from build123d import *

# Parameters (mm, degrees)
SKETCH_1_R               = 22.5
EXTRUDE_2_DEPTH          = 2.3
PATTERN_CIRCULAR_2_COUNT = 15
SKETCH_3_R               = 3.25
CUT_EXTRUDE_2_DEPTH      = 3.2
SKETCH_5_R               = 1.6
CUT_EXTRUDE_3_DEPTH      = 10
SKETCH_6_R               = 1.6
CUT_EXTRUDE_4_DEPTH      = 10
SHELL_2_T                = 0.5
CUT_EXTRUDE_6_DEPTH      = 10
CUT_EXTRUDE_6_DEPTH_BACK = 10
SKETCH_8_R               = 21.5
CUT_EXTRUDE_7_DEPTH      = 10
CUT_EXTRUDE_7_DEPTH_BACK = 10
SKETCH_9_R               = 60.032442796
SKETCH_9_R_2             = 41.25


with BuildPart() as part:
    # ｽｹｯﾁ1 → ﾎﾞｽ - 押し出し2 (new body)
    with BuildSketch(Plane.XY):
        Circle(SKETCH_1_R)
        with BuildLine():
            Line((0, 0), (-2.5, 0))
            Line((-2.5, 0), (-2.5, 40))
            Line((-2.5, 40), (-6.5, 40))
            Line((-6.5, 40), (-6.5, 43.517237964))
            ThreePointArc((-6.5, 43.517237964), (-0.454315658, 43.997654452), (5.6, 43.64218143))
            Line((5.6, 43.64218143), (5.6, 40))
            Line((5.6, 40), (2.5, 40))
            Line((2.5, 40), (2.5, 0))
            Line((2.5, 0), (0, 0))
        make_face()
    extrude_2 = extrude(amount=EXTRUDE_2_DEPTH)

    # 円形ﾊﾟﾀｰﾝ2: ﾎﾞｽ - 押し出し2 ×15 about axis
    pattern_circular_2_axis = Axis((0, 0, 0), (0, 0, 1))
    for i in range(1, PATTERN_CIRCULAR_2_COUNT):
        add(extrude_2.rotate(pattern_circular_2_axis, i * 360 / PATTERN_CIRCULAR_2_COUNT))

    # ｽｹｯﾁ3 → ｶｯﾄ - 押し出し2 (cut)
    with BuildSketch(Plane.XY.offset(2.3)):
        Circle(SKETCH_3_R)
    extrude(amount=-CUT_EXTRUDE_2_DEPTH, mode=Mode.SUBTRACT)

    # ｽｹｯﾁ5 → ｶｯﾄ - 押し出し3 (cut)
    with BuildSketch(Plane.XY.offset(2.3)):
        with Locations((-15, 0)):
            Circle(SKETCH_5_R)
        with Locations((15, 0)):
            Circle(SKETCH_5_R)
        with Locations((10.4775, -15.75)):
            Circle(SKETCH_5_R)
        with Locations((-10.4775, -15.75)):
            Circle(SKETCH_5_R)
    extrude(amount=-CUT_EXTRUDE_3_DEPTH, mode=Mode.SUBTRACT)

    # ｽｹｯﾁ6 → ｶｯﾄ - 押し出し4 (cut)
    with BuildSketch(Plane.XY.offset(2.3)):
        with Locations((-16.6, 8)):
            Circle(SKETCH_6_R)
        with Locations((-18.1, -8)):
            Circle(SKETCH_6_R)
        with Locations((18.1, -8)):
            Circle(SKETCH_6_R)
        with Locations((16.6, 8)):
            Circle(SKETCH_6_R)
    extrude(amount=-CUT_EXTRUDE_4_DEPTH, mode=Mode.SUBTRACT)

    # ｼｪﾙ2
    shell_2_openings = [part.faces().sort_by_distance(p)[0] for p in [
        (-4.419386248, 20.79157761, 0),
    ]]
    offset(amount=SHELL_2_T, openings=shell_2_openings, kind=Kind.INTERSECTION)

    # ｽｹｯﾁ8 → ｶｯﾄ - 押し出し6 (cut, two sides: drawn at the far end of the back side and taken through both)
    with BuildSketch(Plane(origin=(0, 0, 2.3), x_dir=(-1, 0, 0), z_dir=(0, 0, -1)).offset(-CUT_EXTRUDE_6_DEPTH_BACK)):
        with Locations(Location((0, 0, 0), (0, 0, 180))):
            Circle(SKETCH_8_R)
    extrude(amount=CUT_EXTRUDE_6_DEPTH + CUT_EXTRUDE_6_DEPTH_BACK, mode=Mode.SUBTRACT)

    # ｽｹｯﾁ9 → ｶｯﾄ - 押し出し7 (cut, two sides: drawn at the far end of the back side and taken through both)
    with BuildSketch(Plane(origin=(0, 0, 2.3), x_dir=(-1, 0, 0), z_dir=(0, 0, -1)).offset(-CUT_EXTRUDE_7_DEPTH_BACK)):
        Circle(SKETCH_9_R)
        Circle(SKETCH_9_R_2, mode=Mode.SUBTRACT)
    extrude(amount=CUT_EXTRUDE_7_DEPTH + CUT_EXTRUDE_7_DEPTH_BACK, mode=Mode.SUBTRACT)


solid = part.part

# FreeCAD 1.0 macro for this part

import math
import FreeCAD as App
import Part
import Sketcher
Q = App.Units.Quantity


def faces_at(feature, points):
    """Names of the faces that lie closest to the given points."""
    faces = feature.Shape.Faces
    near = lambda p: min(range(len(faces)), key=lambda i: faces[i].distToShape(Part.Vertex(*p))[0])
    return sorted({f"Face{near(p) + 1}" for p in points})

doc = App.newDocument("Part")
body = doc.addObject("PartDesign::Body", "Body")

# Sketch on XY plane
sketch1 = doc.addObject("Sketcher::SketchObject", "Sketch")
body.addObject(sketch1)
sketch1.AttachmentSupport = (doc.XY_Plane, [""])
sketch1.MapMode = "FlatFace"
sketch1.addGeometry([
    Part.ArcOfCircle(Part.Circle(App.Vector(0, 0, 0), App.Vector(0, 0, 1), 22.5), math.radians(96), math.radians(444)),  # 0
    Part.LineSegment(App.Vector(2.5, 22.4, 0), App.Vector(2.5, 40, 0)),  # 1
    Part.LineSegment(App.Vector(2.5, 40, 0), App.Vector(5.6, 40, 0)),  # 2
    Part.LineSegment(App.Vector(5.6, 40, 0), App.Vector(5.6, 43.6, 0)),  # 3
    Part.ArcOfCircle(Part.Circle(App.Vector(0, 0, 0), App.Vector(0, 0, 1), 44), math.radians(82.69), math.radians(98.5)),  # 4
    Part.LineSegment(App.Vector(-6.5, 43.5, 0), App.Vector(-6.5, 40, 0)),  # 5
    Part.LineSegment(App.Vector(-6.5, 40, 0), App.Vector(-2.5, 40, 0)),  # 6
    Part.LineSegment(App.Vector(-2.5, 40, 0), App.Vector(-2.5, 22.4, 0)),  # 7
], False)
sketch1.addConstraint([
    Sketcher.Constraint("Coincident", 0, 2, 1, 1),
    Sketcher.Constraint("Coincident", 1, 2, 2, 1),
    Sketcher.Constraint("Coincident", 2, 2, 3, 1),
    Sketcher.Constraint("Coincident", 3, 2, 4, 1),
    Sketcher.Constraint("Coincident", 4, 2, 5, 1),
    Sketcher.Constraint("Coincident", 5, 2, 6, 1),
    Sketcher.Constraint("Coincident", 6, 2, 7, 1),
    Sketcher.Constraint("Coincident", 7, 2, 0, 1),
    Sketcher.Constraint("Vertical", 1),
    Sketcher.Constraint("Horizontal", 2),
    Sketcher.Constraint("Vertical", 3),
    Sketcher.Constraint("Vertical", 5),
    Sketcher.Constraint("Horizontal", 6),
    Sketcher.Constraint("Vertical", 7),
    Sketcher.Constraint("Coincident", 0, 3, -1, 1),
    Sketcher.Constraint("Coincident", 4, 3, -1, 1),
    Sketcher.Constraint("Symmetric", 1, 2, 6, 2, -2),
    Sketcher.Constraint("Radius", 4, Q("44 mm")),
    Sketcher.Constraint("Radius", 0, Q("22.5 mm")),
    Sketcher.Constraint("DistanceX", 6, 1, 6, 2, Q("4 mm")),
    Sketcher.Constraint("DistanceX", 2, 1, 2, 2, Q("3.1 mm")),
    Sketcher.Constraint("DistanceY", -1, 1, 1, 2, Q("40 mm")),
    Sketcher.Constraint("DistanceX", 4, 2, 1, 2, Q("9 mm")),
])
pad1 = doc.addObject("PartDesign::Pad", "Pad")
body.addObject(pad1)
pad1.Profile = sketch1
pad1.Length = 2.3
doc.recompute()

polarpattern = doc.addObject("PartDesign::PolarPattern", "PolarPattern")
body.addObject(polarpattern)
polarpattern.Originals = [pad1]
polarpattern.Axis = (doc.Z_Axis, [""])
polarpattern.Angle = 360
polarpattern.Occurrences = 15
body.Tip = polarpattern

# Sketch on XY plane
sketch2 = doc.addObject("Sketcher::SketchObject", "Sketch001")
body.addObject(sketch2)
sketch2.AttachmentSupport = (doc.XY_Plane, [""])
sketch2.MapMode = "FlatFace"
sketch2.AttachmentOffset = App.Placement(App.Vector(0, 0, 2.3), App.Rotation())
sketch2.addGeometry(Part.Circle(App.Vector(0, 0, 0), App.Vector(0, 0, 1), 3.2), False)
sketch2.addConstraint([
    Sketcher.Constraint("Coincident", 0, 3, -1, 1),
    Sketcher.Constraint("Diameter", 0, Q("6.5 mm")),
])
pocket1 = doc.addObject("PartDesign::Pocket", "Pocket")
body.addObject(pocket1)
pocket1.Profile = sketch2
pocket1.Length = 3.2

# Sketch on XY plane
sketch3 = doc.addObject("Sketcher::SketchObject", "Sketch002")
body.addObject(sketch3)
sketch3.AttachmentSupport = (doc.XY_Plane, [""])
sketch3.MapMode = "FlatFace"
sketch3.AttachmentOffset = App.Placement(App.Vector(0, 0, 2.3), App.Rotation())
sketch3.addGeometry([
    Part.Circle(App.Vector(-15, 0, 0), App.Vector(0, 0, 1), 1.6),
    Part.Circle(App.Vector(15, 0, 0), App.Vector(0, 0, 1), 1.6),
    Part.Circle(App.Vector(10.5, -15.8, 0), App.Vector(0, 0, 1), 1.6),
    Part.Circle(App.Vector(-10.5, -15.8, 0), App.Vector(0, 0, 1), 1.6),
], False)
sketch3.addConstraint([
    Sketcher.Constraint("Equal", 0, 1),
    Sketcher.Constraint("Equal", 1, 2),
    Sketcher.Constraint("Equal", 2, 3),
    Sketcher.Constraint("Symmetric", 0, 3, 1, 3, -1, 1),
    Sketcher.Constraint("Symmetric", 2, 3, 3, 3, -2),
    Sketcher.Constraint("PointOnObject", 0, 3, -1),
    Sketcher.Constraint("Diameter", 0, Q("3.2 mm")),
    Sketcher.Constraint("DistanceX", 0, 3, -1, 1, Q("15 mm")),
    Sketcher.Constraint("DistanceY", 2, 3, -1, 1, Q("15.75 mm")),
    Sketcher.Constraint("DistanceX", 3, 3, 2, 3, Q("20.955 mm")),
])
pocket2 = doc.addObject("PartDesign::Pocket", "Pocket001")
body.addObject(pocket2)
pocket2.Profile = sketch3
pocket2.Length = 10

# Sketch on XY plane
sketch4 = doc.addObject("Sketcher::SketchObject", "Sketch003")
body.addObject(sketch4)
sketch4.AttachmentSupport = (doc.XY_Plane, [""])
sketch4.MapMode = "FlatFace"
sketch4.AttachmentOffset = App.Placement(App.Vector(0, 0, 2.3), App.Rotation())
sketch4.addGeometry([
    Part.Circle(App.Vector(-16.6, 8, 0), App.Vector(0, 0, 1), 1.6),
    Part.Circle(App.Vector(-18.1, -8, 0), App.Vector(0, 0, 1), 1.6),
    Part.Circle(App.Vector(18.1, -8, 0), App.Vector(0, 0, 1), 1.6),
    Part.Circle(App.Vector(16.6, 8, 0), App.Vector(0, 0, 1), 1.6),
], False)
sketch4.addConstraint([
    Sketcher.Constraint("Equal", 0, 1),
    Sketcher.Constraint("Equal", 1, 2),
    Sketcher.Constraint("Equal", 2, 3),
    Sketcher.Constraint("Symmetric", 1, 3, 2, 3, -2),
    Sketcher.Constraint("Symmetric", 0, 3, 3, 3, -2),
    Sketcher.Constraint("Diameter", 0, Q("3.2 mm")),
    Sketcher.Constraint("DistanceY", -1, 1, 0, 3, Q("8 mm")),
    Sketcher.Constraint("DistanceY", 1, 3, -1, 1, Q("8 mm")),
    Sketcher.Constraint("DistanceX", 0, 3, -1, 1, Q("16.6 mm")),
    Sketcher.Constraint("DistanceX", 1, 3, -1, 1, Q("18.1 mm")),
])
pocket3 = doc.addObject("PartDesign::Pocket", "Pocket002")
body.addObject(pocket3)
pocket3.Profile = sketch4
pocket3.Length = 10
doc.recompute()

thickness = doc.addObject("PartDesign::Thickness", "Thickness")
body.addObject(thickness)
thickness.Base = (pocket3, faces_at(pocket3, [(0, 35.208, 0)]))
thickness.Value = 0.5
thickness.Reversed = False
thickness.Join = "Intersection"

# Sketch on XY plane
sketch5 = doc.addObject("Sketcher::SketchObject", "Sketch004")
body.addObject(sketch5)
sketch5.AttachmentSupport = (doc.XY_Plane, [""])
sketch5.MapMode = "FlatFace"
sketch5.AttachmentOffset = App.Placement(App.Vector(0, 0, 2.3), App.Rotation())
sketch5.addGeometry(Part.Circle(App.Vector(0, 0, 0), App.Vector(0, 0, 1), 22), False)
sketch5.addConstraint([
    Sketcher.Constraint("Coincident", 0, 3, -1, 1),
    Sketcher.Constraint("Diameter", 0, Q("43 mm")),
])
pocket4 = doc.addObject("PartDesign::Pocket", "Pocket003")
body.addObject(pocket4)
pocket4.Profile = sketch5
pocket4.Type = "ThroughAll"
pocket4.Midplane = True

# Sketch on XY plane
sketch6 = doc.addObject("Sketcher::SketchObject", "Sketch005")
body.addObject(sketch6)
sketch6.AttachmentSupport = (doc.XY_Plane, [""])
sketch6.MapMode = "FlatFace"
sketch6.AttachmentOffset = App.Placement(App.Vector(0, 0, 2.3), App.Rotation())
sketch6.addGeometry([
    Part.Circle(App.Vector(0, 0, 0), App.Vector(0, 0, 1), 60),
    Part.Circle(App.Vector(0, 0, 0), App.Vector(0, 0, 1), 41),
], False)
sketch6.addConstraint([
    Sketcher.Constraint("Coincident", 0, 3, -1, 1),
    Sketcher.Constraint("Coincident", 1, 3, -1, 1),
    Sketcher.Constraint("Diameter", 1, Q("82.5 mm")),
    Sketcher.Constraint("Diameter", 0, Q("120.064886 mm")),
])
pocket5 = doc.addObject("PartDesign::Pocket", "Pocket004")
body.addObject(pocket5)
pocket5.Profile = sketch6
pocket5.Type = "ThroughAll"
pocket5.Midplane = True

doc.recompute()
